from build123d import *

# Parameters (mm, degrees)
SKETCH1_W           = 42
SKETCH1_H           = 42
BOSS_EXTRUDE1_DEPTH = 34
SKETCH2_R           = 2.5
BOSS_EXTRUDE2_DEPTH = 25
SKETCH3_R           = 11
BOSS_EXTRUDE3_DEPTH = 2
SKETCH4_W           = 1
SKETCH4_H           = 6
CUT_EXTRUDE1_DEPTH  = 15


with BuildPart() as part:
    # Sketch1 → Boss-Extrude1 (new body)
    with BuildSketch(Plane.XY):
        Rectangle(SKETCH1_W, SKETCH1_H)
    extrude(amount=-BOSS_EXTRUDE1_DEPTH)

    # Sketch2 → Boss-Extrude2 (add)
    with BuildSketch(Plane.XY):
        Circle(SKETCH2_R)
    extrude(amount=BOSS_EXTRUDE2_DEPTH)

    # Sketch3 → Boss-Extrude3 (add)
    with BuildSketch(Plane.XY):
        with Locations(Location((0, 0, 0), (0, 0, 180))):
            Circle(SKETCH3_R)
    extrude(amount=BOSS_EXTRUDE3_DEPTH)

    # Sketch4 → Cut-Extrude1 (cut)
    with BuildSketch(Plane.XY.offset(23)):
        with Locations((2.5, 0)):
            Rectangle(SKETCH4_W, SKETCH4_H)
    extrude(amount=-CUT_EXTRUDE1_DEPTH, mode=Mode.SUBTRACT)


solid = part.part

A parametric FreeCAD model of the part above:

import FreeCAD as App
import Part
import Sketcher
from FreeCAD import Vector
Q = App.Units.Quantity

doc = App.newDocument("Part")
params = doc.addObject("Spreadsheet::Sheet", "Params")
for row, (alias, value) in enumerate([
    ("sketch1_width", "42 mm"),
    ("pad1_length", "34 mm"),
    ("sketch2_diameter", "5 mm"),
    ("pad2_length", "25 mm"),
    ("sketch3_diameter", "22 mm"),
    ("pad3_length", "2 mm"),
    ("sketch4_width", "1 mm"),
    ("sketch4_height", "6 mm"),
    ("pocket1_length", "15 mm"),
], start=1):
    params.set(f"A{row}", alias)
    params.set(f"B{row}", "=" + value)
    params.setAlias(f"B{row}", alias)

body = doc.addObject("PartDesign::Body", "Body")

sketch1 = doc.addObject("Sketcher::SketchObject", "Sketch")
body.addObject(sketch1)
sketch1.AttachmentSupport = (doc.XY_Plane, [""])
sketch1.MapMode = "FlatFace"
sketch1.addGeometry(Part.LineSegment(Vector(-21, 21, 0), Vector(-21, -21, 0)), False)
sketch1.addGeometry(Part.LineSegment(Vector(-21, -21, 0), Vector(21, -21, 0)), False)
sketch1.addGeometry(Part.LineSegment(Vector(21, -21, 0), Vector(21, 21, 0)), False)
sketch1.addGeometry(Part.LineSegment(Vector(21, 21, 0), Vector(-21, 21, 0)), False)
sketch1.addConstraint(Sketcher.Constraint("Coincident", 0, 2, 1, 1))
sketch1.addConstraint(Sketcher.Constraint("Coincident", 1, 2, 2, 1))
sketch1.addConstraint(Sketcher.Constraint("Coincident", 2, 2, 3, 1))
sketch1.addConstraint(Sketcher.Constraint("Coincident", 3, 2, 0, 1))
sketch1.addConstraint(Sketcher.Constraint("Vertical", 0))
sketch1.addConstraint(Sketcher.Constraint("Horizontal", 1))
sketch1.addConstraint(Sketcher.Constraint("Vertical", 2))
sketch1.addConstraint(Sketcher.Constraint("Horizontal", 3))
sketch1.addConstraint(Sketcher.Constraint("Symmetric", 0, 2, 2, 2, -1, 1))
sketch1.addConstraint(Sketcher.Constraint("Equal", 3, 0))
sketch1.addConstraint(Sketcher.Constraint("DistanceX", 1, 1, 1, 2, Q("42 mm")))
sketch1.setExpression("Constraints[10]", "Params.sketch1_width")
pad1 = doc.addObject("PartDesign::Pad", "Pad")
body.addObject(pad1)
pad1.Profile = sketch1
pad1.setExpression("Length", "Params.pad1_length")
pad1.Reversed = True

sketch2 = doc.addObject("Sketcher::SketchObject", "Sketch001")
body.addObject(sketch2)
sketch2.AttachmentSupport = (doc.XY_Plane, [""])
sketch2.MapMode = "FlatFace"
sketch2.addGeometry(Part.Circle(Vector(0, 0, 0), Vector(0, 0, 1), 2.5), False)
sketch2.addConstraint(Sketcher.Constraint("Coincident", 0, 3, -1, 1))
sketch2.addConstraint(Sketcher.Constraint("Diameter", 0, Q("5 mm")))
sketch2.setExpression("Constraints[1]", "Params.sketch2_diameter")
pad2 = doc.addObject("PartDesign::Pad", "Pad001")
body.addObject(pad2)
pad2.Profile = sketch2
pad2.setExpression("Length", "Params.pad2_length")

sketch3 = doc.addObject("Sketcher::SketchObject", "Sketch002")
body.addObject(sketch3)
sketch3.AttachmentSupport = (doc.XY_Plane, [""])
sketch3.MapMode = "FlatFace"
sketch3.addGeometry(Part.Circle(Vector(0, 0, 0), Vector(0, 0, 1), 11), False)
sketch3.addConstraint(Sketcher.Constraint("Coincident", 0, 3, -1, 1))
sketch3.addConstraint(Sketcher.Constraint("Diameter", 0, Q("22 mm")))
sketch3.setExpression("Constraints[1]", "Params.sketch3_diameter")
pad3 = doc.addObject("PartDesign::Pad", "Pad002")
body.addObject(pad3)
pad3.Profile = sketch3
pad3.setExpression("Length", "Params.pad3_length")

sketch4 = doc.addObject("Sketcher::SketchObject", "Sketch003")
body.addObject(sketch4)
sketch4.AttachmentSupport = (doc.XY_Plane, [""])
sketch4.MapMode = "FlatFace"
sketch4.AttachmentOffset = App.Placement(Vector(0, 0, 23), App.Rotation())
sketch4.addGeometry(Part.LineSegment(Vector(2, 3, 0), Vector(2, -3, 0)), False)
sketch4.addGeometry(Part.LineSegment(Vector(2, -3, 0), Vector(3, -3, 0)), False)
sketch4.addGeometry(Part.LineSegment(Vector(3, -3, 0), Vector(3, 3, 0)), False)
sketch4.addGeometry(Part.LineSegment(Vector(3, 3, 0), Vector(2, 3, 0)), False)
sketch4.addConstraint(Sketcher.Constraint("Coincident", 0, 2, 1, 1))
sketch4.addConstraint(Sketcher.Constraint("Coincident", 1, 2, 2, 1))
sketch4.addConstraint(Sketcher.Constraint("Coincident", 2, 2, 3, 1))
sketch4.addConstraint(Sketcher.Constraint("Coincident", 3, 2, 0, 1))
sketch4.addConstraint(Sketcher.Constraint("Vertical", 0))
sketch4.addConstraint(Sketcher.Constraint("Horizontal", 1))
sketch4.addConstraint(Sketcher.Constraint("Vertical", 2))
sketch4.addConstraint(Sketcher.Constraint("Horizontal", 3))
sketch4.addConstraint(Sketcher.Constraint("DistanceX", 1, 1, 1, 2, Q("1 mm")))
sketch4.addConstraint(Sketcher.Constraint("DistanceY", 0, 2, 0, 1, Q("6 mm")))
sketch4.addConstraint(Sketcher.Constraint("DistanceX", -1, 1, 0, 2, Q("2 mm")))
sketch4.addConstraint(Sketcher.Constraint("DistanceY", 0, 2, -1, 1, Q("3 mm")))
sketch4.setExpression("Constraints[8]", "Params.sketch4_width")
sketch4.setExpression("Constraints[9]", "Params.sketch4_height")
pocket1 = doc.addObject("PartDesign::Pocket", "Pocket")
body.addObject(pocket1)
pocket1.Profile = sketch4
pocket1.setExpression("Length", "Params.pocket1_length")

doc.recompute()
